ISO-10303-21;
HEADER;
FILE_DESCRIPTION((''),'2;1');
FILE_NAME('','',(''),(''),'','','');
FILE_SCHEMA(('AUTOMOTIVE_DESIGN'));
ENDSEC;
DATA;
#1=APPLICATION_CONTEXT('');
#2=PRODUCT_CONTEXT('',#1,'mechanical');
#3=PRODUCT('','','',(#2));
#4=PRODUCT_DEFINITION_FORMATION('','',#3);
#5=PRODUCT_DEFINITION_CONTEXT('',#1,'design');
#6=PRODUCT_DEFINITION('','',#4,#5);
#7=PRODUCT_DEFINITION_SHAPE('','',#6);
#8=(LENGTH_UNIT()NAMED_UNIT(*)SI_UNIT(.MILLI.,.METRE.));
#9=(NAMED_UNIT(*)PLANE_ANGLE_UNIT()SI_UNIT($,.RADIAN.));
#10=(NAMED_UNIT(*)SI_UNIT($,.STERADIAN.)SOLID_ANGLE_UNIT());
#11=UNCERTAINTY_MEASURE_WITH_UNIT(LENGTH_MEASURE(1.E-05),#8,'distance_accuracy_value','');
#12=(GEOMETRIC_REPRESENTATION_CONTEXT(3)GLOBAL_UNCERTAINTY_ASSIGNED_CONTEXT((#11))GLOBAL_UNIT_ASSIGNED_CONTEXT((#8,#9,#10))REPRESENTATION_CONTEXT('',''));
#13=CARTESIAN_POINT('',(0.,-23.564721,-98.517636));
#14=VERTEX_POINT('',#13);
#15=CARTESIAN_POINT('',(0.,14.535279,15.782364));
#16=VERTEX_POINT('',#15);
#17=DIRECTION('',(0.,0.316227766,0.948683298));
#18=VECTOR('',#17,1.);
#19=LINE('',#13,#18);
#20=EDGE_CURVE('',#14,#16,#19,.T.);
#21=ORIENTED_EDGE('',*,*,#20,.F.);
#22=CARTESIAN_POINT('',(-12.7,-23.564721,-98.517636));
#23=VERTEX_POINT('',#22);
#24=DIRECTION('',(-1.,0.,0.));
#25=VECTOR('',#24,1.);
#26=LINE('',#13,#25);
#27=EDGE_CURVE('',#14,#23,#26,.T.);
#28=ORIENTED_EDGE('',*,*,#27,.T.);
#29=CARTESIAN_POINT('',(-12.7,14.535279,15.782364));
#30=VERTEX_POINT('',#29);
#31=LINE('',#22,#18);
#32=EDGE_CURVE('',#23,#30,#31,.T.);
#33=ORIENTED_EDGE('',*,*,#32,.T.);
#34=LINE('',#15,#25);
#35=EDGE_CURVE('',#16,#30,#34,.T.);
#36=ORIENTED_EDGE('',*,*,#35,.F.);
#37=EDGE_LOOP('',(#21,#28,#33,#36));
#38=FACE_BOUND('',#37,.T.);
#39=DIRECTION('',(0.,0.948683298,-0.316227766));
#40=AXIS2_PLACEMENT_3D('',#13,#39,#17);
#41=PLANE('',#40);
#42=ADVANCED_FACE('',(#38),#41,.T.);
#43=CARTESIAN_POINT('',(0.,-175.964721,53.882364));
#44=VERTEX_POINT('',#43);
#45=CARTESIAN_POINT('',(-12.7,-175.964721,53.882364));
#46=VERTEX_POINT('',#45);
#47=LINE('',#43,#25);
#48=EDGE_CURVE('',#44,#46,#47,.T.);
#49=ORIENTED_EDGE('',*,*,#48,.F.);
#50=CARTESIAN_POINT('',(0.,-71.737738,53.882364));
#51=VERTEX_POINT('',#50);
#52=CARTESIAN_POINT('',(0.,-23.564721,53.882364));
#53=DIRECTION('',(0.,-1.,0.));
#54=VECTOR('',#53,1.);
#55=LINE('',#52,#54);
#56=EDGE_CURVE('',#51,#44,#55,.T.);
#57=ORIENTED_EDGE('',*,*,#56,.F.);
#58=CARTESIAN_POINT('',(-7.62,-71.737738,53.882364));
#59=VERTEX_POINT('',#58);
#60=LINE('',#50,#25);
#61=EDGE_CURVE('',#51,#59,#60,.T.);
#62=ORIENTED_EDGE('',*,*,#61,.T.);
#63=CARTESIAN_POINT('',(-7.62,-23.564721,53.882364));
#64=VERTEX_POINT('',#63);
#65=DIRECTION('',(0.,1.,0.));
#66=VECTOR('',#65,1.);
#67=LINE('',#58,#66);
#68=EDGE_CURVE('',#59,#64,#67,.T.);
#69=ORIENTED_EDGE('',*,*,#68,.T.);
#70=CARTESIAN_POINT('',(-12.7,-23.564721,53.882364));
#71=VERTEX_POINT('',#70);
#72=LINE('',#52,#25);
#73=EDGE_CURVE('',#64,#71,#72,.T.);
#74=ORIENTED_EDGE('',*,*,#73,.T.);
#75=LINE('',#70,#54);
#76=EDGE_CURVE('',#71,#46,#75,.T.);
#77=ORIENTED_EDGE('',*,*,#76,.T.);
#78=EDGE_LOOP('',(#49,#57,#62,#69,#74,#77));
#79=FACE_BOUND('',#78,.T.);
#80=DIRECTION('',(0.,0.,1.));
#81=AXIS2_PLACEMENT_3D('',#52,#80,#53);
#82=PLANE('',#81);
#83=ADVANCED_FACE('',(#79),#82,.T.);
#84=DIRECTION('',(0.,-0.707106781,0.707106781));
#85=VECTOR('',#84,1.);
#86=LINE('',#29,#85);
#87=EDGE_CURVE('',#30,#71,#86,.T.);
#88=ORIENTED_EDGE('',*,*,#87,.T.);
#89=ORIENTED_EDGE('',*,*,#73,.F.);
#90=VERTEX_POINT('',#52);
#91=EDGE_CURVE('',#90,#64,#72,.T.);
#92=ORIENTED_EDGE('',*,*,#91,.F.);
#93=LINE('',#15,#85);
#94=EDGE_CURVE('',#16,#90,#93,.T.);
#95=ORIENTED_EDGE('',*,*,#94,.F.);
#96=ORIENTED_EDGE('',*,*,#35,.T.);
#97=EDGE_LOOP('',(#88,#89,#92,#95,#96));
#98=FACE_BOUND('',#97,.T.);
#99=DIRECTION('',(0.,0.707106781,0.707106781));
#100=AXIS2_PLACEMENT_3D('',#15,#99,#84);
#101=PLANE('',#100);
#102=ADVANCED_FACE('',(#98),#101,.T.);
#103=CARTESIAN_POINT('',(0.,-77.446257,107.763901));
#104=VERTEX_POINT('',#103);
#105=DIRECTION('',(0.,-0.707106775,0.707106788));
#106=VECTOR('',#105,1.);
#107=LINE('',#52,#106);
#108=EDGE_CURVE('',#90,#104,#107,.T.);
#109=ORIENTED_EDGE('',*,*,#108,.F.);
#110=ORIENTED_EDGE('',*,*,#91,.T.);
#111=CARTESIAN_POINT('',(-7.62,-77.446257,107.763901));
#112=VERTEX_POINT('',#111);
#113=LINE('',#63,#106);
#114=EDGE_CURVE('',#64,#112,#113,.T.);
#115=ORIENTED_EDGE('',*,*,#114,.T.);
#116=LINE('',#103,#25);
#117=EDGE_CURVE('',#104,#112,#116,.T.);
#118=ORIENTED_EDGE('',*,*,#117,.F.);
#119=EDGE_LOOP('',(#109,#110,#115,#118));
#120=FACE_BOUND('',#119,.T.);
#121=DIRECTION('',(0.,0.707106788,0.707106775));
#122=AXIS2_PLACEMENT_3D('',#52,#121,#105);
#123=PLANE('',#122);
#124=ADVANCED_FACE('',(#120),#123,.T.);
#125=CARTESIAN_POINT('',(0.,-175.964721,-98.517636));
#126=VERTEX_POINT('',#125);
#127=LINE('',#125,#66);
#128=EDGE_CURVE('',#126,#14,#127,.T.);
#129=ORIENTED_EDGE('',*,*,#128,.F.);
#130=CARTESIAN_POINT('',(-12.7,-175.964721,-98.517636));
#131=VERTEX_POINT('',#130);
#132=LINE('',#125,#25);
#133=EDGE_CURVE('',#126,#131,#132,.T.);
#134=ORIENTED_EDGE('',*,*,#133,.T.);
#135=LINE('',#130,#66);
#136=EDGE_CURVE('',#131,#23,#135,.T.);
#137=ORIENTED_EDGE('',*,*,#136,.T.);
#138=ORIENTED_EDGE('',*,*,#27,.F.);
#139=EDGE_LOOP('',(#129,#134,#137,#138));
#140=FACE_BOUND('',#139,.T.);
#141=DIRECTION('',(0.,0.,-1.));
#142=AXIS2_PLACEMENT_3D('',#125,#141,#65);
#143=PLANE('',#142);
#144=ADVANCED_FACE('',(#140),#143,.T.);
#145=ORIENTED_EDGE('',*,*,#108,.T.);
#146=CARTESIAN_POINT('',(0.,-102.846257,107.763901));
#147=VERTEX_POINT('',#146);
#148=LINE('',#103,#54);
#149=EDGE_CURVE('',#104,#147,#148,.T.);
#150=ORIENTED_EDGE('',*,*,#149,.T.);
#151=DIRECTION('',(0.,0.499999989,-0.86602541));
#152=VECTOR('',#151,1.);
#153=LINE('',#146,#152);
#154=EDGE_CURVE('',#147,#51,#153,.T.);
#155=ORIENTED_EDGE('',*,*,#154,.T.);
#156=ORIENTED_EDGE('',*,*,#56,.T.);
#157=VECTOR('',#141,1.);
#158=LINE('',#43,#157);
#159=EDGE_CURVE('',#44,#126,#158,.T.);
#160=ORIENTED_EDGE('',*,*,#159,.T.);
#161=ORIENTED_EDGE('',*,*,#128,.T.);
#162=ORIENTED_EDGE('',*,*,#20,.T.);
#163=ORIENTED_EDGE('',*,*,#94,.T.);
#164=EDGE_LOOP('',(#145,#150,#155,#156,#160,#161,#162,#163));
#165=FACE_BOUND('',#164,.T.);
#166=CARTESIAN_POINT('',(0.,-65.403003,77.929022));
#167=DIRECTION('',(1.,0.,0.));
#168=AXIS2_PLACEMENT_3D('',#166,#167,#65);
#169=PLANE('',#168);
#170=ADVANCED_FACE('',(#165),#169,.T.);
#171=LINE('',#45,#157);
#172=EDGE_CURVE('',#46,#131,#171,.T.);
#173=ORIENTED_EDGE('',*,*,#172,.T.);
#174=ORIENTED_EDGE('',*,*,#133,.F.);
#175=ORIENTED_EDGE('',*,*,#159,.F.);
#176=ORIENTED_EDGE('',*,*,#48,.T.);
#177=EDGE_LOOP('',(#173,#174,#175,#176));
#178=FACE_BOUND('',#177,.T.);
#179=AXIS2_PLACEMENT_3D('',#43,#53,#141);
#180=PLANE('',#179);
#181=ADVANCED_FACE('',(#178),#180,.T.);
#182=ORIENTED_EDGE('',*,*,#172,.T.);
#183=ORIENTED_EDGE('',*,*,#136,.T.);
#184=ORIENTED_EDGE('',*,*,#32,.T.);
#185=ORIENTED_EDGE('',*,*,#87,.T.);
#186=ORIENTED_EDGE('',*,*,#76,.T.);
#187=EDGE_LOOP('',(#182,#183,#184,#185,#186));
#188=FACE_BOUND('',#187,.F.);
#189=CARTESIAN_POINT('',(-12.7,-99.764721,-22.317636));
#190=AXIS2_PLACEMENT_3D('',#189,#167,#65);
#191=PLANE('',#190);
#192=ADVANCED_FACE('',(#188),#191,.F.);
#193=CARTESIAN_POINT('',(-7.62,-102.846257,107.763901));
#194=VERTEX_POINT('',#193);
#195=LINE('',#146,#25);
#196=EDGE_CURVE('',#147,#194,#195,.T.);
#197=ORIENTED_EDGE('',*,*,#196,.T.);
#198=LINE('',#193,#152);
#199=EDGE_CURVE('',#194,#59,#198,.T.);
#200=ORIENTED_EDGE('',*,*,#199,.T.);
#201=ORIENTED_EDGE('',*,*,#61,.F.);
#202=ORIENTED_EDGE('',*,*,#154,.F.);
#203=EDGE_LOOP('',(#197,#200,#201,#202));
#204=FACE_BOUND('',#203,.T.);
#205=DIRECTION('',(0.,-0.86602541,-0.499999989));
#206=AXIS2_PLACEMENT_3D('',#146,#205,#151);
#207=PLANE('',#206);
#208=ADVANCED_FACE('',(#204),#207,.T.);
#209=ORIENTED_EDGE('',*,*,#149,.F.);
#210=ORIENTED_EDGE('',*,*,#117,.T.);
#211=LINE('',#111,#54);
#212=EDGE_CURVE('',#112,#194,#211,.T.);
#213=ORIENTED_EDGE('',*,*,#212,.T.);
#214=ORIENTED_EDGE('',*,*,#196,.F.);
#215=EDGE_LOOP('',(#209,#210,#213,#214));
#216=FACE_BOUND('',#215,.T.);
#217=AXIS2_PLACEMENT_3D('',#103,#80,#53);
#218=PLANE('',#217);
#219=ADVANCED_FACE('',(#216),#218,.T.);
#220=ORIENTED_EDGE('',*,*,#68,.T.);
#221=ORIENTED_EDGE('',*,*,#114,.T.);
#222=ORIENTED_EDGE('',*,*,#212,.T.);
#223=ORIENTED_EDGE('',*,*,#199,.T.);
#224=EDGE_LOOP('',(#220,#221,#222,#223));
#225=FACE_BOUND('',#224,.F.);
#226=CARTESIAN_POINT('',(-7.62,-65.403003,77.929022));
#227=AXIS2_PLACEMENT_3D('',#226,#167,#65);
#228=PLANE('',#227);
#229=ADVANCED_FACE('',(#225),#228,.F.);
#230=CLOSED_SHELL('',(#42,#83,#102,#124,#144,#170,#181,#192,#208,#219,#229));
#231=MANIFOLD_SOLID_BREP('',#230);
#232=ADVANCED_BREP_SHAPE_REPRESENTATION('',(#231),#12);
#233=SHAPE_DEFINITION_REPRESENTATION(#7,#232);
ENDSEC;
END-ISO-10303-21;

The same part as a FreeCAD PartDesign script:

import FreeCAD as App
import Part
import Sketcher
from FreeCAD import Vector
Q = App.Units.Quantity


def add_polygon(sketch, points):
    """Adds a closed chain of lines whose ends are joined by coincident constraints."""
    first, n = sketch.GeometryCount, len(points)
    for a, b in zip(points, points[1:] + points[:1]):
        sketch.addGeometry(Part.LineSegment(App.Vector(*a, 0), App.Vector(*b, 0)), False)
    for i in range(n):
        sketch.addConstraint(Sketcher.Constraint("Coincident", first + i, 2, first + (i + 1) % n, 1))

doc = App.newDocument("Part")
params = doc.addObject("Spreadsheet::Sheet", "Params")
for row, (alias, value) in enumerate([
    ("sketch1_width", "6 in"),
    ("pad1_length", "0.5 in"),
    ("sketch2_width", "1 in"),
    ("sketch2_length", "3 in"),
    ("pad2_length", "0.3 in"),
], start=1):
    params.set(f"A{row}", alias)
    params.set(f"B{row}", "=" + value)
    params.setAlias(f"B{row}", alias)

body = doc.addObject("PartDesign::Body", "Body")

# Sketch on YZ plane
sketch1 = doc.addObject("Sketcher::SketchObject", "Sketch")
body.addObject(sketch1)
sketch1.AttachmentSupport = (doc.YZ_Plane, [""])
sketch1.MapMode = "FlatFace"
add_polygon(sketch1, [(-23.564721, 53.882364), (-175.964721, 53.882364), (-175.964721, -98.517636), (-23.564721, -98.517636), (14.535279, 15.782364)])  # lines 0-4
sketch1.addConstraint(Sketcher.Constraint("Horizontal", 0))
sketch1.addConstraint(Sketcher.Constraint("Vertical", 1))
sketch1.addConstraint(Sketcher.Constraint("Horizontal", 2))
sketch1.addConstraint(Sketcher.Constraint("Vertical", 2, 2, 4, 2))
sketch1.addConstraint(Sketcher.Constraint("Equal", 2, 1))
sketch1.addConstraint(Sketcher.Constraint("DistanceX", 0, 2, 0, 1, Q("6 in")))
sketch1.addConstraint(Sketcher.Constraint("Angle", 4, Q("135 deg")))
sketch1.addConstraint(Sketcher.Constraint("DistanceX", 2, 2, 3, 2, Q("1.5 in")))
sketch1.addConstraint(Sketcher.Constraint("DistanceX", 0, 2, -1, 1, 175.964721))
sketch1.addConstraint(Sketcher.Constraint("DistanceY", -1, 1, 0, 2, 53.882364))
sketch1.setExpression("Constraints[10]", "Params.sketch1_width")
pad1 = doc.addObject("PartDesign::Pad", "Pad")
body.addObject(pad1)
pad1.Profile = sketch1
pad1.setExpression("Length", "Params.pad1_length")
pad1.Reversed = True

# Sketch on YZ plane
sketch2 = doc.addObject("Sketcher::SketchObject", "Sketch001")
body.addObject(sketch2)
sketch2.AttachmentSupport = (doc.YZ_Plane, [""])
sketch2.MapMode = "FlatFace"
add_polygon(sketch2, [(-71.737738, 53.882364), (-23.564721, 53.882364), (-77.446257, 107.763901), (-102.846257, 107.763901)])  # lines 0-3
sketch2.addConstraint(Sketcher.Constraint("Horizontal", 0))
sketch2.addConstraint(Sketcher.Constraint("Horizontal", 2))
sketch2.addConstraint(Sketcher.Constraint("DistanceX", 2, 2, 2, 1, Q("1 in")))
sketch2.addConstraint(Sketcher.Constraint("Distance", 1, Q("3 in")))
sketch2.addConstraint(Sketcher.Constraint("Angle", 1, Q("134.999999 deg")))
sketch2.addConstraint(Sketcher.Constraint("Angle", 3, Q("-60.000001 deg")))
sketch2.addConstraint(Sketcher.Constraint("DistanceY", -1, 1, 1, 2, 107.763901))
sketch2.addConstraint(Sketcher.Constraint("DistanceX", 0, 2, -1, 1, 23.564721))
sketch2.setExpression("Constraints[6]", "Params.sketch2_width")
sketch2.setExpression("Constraints[7]", "Params.sketch2_length")
pad2 = doc.addObject("PartDesign::Pad", "Pad001")
body.addObject(pad2)
pad2.Profile = sketch2
pad2.setExpression("Length", "Params.pad2_length")
pad2.Reversed = True

doc.recompute()
